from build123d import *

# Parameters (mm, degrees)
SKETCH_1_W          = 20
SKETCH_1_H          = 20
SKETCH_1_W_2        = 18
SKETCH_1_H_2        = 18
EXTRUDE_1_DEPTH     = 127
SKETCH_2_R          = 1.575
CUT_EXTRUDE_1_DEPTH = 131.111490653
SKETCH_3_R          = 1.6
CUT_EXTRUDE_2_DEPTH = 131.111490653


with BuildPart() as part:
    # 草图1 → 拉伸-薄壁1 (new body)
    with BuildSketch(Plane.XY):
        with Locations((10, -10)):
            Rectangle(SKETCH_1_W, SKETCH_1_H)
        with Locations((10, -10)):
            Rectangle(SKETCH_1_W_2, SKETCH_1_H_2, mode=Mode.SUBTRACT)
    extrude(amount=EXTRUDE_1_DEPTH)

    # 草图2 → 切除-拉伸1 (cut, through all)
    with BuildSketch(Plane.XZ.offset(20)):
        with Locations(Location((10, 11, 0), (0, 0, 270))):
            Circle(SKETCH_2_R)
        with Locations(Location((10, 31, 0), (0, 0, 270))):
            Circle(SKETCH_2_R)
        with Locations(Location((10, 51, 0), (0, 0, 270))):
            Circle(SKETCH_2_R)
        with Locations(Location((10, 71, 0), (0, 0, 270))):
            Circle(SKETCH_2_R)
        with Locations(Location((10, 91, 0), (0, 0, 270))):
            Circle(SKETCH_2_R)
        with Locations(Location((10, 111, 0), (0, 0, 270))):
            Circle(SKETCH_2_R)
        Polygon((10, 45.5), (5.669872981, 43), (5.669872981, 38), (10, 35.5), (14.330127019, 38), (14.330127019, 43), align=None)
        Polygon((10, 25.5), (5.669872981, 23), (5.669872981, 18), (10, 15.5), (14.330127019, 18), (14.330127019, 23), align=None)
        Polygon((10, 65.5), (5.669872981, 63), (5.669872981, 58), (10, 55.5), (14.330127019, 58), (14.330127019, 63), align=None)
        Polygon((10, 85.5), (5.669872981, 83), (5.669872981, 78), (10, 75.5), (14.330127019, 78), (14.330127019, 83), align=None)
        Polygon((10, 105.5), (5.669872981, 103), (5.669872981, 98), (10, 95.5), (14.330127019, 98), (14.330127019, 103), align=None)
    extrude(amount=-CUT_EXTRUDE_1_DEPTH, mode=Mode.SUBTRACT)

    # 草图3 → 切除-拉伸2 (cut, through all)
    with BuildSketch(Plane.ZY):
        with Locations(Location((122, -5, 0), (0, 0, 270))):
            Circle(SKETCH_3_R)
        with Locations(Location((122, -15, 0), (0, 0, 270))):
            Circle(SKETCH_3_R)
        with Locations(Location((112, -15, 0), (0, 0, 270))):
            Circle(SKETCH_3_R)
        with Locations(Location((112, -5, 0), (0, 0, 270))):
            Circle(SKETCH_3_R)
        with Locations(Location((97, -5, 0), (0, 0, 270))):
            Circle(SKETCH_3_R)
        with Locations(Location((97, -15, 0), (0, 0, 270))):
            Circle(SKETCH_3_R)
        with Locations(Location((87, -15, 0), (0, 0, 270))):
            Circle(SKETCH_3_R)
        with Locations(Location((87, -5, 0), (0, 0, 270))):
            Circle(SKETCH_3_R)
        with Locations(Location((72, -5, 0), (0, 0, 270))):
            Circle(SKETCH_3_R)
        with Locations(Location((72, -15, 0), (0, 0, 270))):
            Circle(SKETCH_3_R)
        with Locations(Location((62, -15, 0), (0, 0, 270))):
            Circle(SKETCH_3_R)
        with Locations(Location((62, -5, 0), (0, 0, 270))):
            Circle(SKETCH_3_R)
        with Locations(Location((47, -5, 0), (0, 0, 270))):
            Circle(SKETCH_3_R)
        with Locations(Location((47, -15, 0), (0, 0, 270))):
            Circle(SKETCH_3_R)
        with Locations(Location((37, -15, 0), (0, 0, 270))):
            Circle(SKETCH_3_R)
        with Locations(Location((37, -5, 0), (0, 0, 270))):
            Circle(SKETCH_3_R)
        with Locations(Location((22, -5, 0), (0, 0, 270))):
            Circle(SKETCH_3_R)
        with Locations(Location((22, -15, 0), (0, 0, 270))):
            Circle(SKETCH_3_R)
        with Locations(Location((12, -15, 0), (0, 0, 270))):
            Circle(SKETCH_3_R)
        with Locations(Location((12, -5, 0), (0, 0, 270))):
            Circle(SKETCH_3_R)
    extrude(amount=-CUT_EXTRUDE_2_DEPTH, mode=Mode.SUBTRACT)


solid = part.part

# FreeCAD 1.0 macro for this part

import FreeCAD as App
import Part
import Sketcher
Q = App.Units.Quantity


def add_polygon(sketch, points):
    """Adds a closed chain of lines whose ends are joined by coincident constraints."""
    first, n = sketch.GeometryCount, len(points)
    for a, b in zip(points, points[1:] + points[:1]):
        sketch.addGeometry(Part.LineSegment(App.Vector(*a, 0), App.Vector(*b, 0)), False)
    for i in range(n):
        sketch.addConstraint(Sketcher.Constraint("Coincident", first + i, 2, first + (i + 1) % n, 1))

doc = App.newDocument("Part")
body = doc.addObject("PartDesign::Body", "Body")

sketch1 = body.newObject("Sketcher::SketchObject", "Sketch")
sketch1.AttachmentSupport = (doc.getObject("XY_Plane"), [""])
sketch1.MapMode = "FlatFace"
add_polygon(sketch1, [(0, 0), (0, -20), (20, -20), (20, 0)])
add_polygon(sketch1, [(19, -19), (1, -19), (1, -1), (19, -1)])
sketch1.addConstraint([
    Sketcher.Constraint("Vertical", 0),
    Sketcher.Constraint("Horizontal", 1),
    Sketcher.Constraint("Vertical", 2),
    Sketcher.Constraint("Horizontal", 3),
    Sketcher.Constraint("Horizontal", 4),
    Sketcher.Constraint("Vertical", 5),
    Sketcher.Constraint("Horizontal", 6),
    Sketcher.Constraint("Vertical", 7),
    Sketcher.Constraint("Coincident", 3, 2, -1, 1),
    Sketcher.Constraint("Equal", 3, 0),
    Sketcher.Constraint("Equal", 6, 5),
    Sketcher.Constraint("DistanceX", 1, 1, 1, 2, 20.0),
    Sketcher.Constraint("DistanceX", 4, 2, 4, 1, 18.0),
    Sketcher.Constraint("DistanceX", -1, 1, 4, 2, 1.0),
    Sketcher.Constraint("DistanceY", 4, 2, -1, 1, 19.0),
])
pad1 = body.newObject("PartDesign::Pad", "Pad")
pad1.Profile = sketch1
pad1.Length = 127

sketch2 = body.newObject("Sketcher::SketchObject", "Sketch001")
sketch2.AttachmentSupport = (doc.getObject("XZ_Plane"), [""])
sketch2.MapMode = "FlatFace"
sketch2.AttachmentOffset = App.Placement(App.Vector(0, 0, 20), App.Rotation())
sketch2.addGeometry(Part.Circle(App.Vector(10, 11, 0), App.Vector(0, 0, 1), 1.6), False)
sketch2.addGeometry(Part.Circle(App.Vector(10, 31, 0), App.Vector(0, 0, 1), 1.6), False)
sketch2.addGeometry(Part.Circle(App.Vector(10, 51, 0), App.Vector(0, 0, 1), 1.6), False)
sketch2.addGeometry(Part.Circle(App.Vector(10, 71, 0), App.Vector(0, 0, 1), 1.6), False)
sketch2.addGeometry(Part.Circle(App.Vector(10, 91, 0), App.Vector(0, 0, 1), 1.6), False)
sketch2.addGeometry(Part.Circle(App.Vector(10, 111, 0), App.Vector(0, 0, 1), 1.6), False)
add_polygon(sketch2, [(10, 45.5), (5.7, 43), (5.7, 38), (10, 35.5), (14.3, 38), (14.3, 43)])
add_polygon(sketch2, [(10, 25.5), (5.7, 23), (5.7, 18), (10, 15.5), (14.3, 18), (14.3, 23)])
add_polygon(sketch2, [(10, 65.5), (5.7, 63), (5.7, 58), (10, 55.5), (14.3, 58), (14.3, 63)])
add_polygon(sketch2, [(10, 85.5), (5.7, 83), (5.7, 78), (10, 75.5), (14.3, 78), (14.3, 83)])
add_polygon(sketch2, [(10, 105.5), (5.7, 103), (5.7, 98), (10, 95.5), (14.3, 98), (14.3, 103)])
sketch2.addConstraint([
    Sketcher.Constraint("Vertical", 7),
    Sketcher.Constraint("Vertical", 10),
    Sketcher.Constraint("Vertical", 13),
    Sketcher.Constraint("Vertical", 16),
    Sketcher.Constraint("Vertical", 19),
    Sketcher.Constraint("Vertical", 22),
    Sketcher.Constraint("Vertical", 25),
    Sketcher.Constraint("Vertical", 28),
    Sketcher.Constraint("Vertical", 31),
    Sketcher.Constraint("Vertical", 34),
    Sketcher.Constraint("Equal", 0, 1),
    Sketcher.Constraint("Equal", 1, 2),
    Sketcher.Constraint("Equal", 2, 3),
    Sketcher.Constraint("Equal", 3, 4),
    Sketcher.Constraint("Equal", 4, 5),
    Sketcher.Constraint("Parallel", 6, 9),
    Sketcher.Constraint("Parallel", 8, 11),
    Sketcher.Constraint("Parallel", 9, 12),
    Sketcher.Constraint("Parallel", 11, 14),
    Sketcher.Constraint("Parallel", 12, 15),
    Sketcher.Constraint("Parallel", 14, 17),
    Sketcher.Constraint("Parallel", 15, 18),
    Sketcher.Constraint("Parallel", 17, 20),
    Sketcher.Constraint("Parallel", 18, 21),
    Sketcher.Constraint("Parallel", 20, 23),
    Sketcher.Constraint("Parallel", 21, 24),
    Sketcher.Constraint("Parallel", 23, 26),
    Sketcher.Constraint("Parallel", 24, 27),
    Sketcher.Constraint("Parallel", 26, 29),
    Sketcher.Constraint("Parallel", 27, 30),
    Sketcher.Constraint("Parallel", 29, 32),
    Sketcher.Constraint("Parallel", 30, 33),
    Sketcher.Constraint("Parallel", 32, 35),
    Sketcher.Constraint("Horizontal", 7, 2, 9, 2),
    Sketcher.Constraint("Horizontal", 6, 2, 10, 2),
    Sketcher.Constraint("Horizontal", 13, 2, 15, 2),
    Sketcher.Constraint("Horizontal", 12, 2, 16, 2),
    Sketcher.Constraint("Horizontal", 19, 2, 21, 2),
    Sketcher.Constraint("Horizontal", 18, 2, 22, 2),
    Sketcher.Constraint("Horizontal", 25, 2, 27, 2),
    Sketcher.Constraint("Horizontal", 24, 2, 28, 2),
    Sketcher.Constraint("Horizontal", 31, 2, 33, 2),
    Sketcher.Constraint("Horizontal", 30, 2, 34, 2),
    Sketcher.Constraint("Vertical", 0, 3, 1, 3),
    Sketcher.Constraint("Vertical", 1, 3, 2, 3),
    Sketcher.Constraint("Vertical", 2, 3, 3, 3),
    Sketcher.Constraint("Vertical", 3, 3, 4, 3),
    Sketcher.Constraint("Vertical", 4, 3, 5, 3),
    Sketcher.Constraint("Vertical", 5, 3, 8, 2),
    Sketcher.Constraint("Vertical", 8, 2, 11, 2),
    Sketcher.Constraint("Vertical", 7, 2, 12, 2),
    Sketcher.Constraint("Vertical", 11, 2, 14, 2),
    Sketcher.Constraint("Vertical", 13, 2, 18, 2),
    Sketcher.Constraint("Vertical", 17, 2, 20, 2),
    Sketcher.Constraint("Vertical", 19, 2, 24, 2),
    Sketcher.Constraint("Vertical", 23, 2, 26, 2),
    Sketcher.Constraint("Vertical", 25, 2, 30, 2),
    Sketcher.Constraint("Vertical", 29, 2, 32, 2),
    Sketcher.Constraint("Equal", 10, 13),
    Sketcher.Constraint("Equal", 16, 19),
    Sketcher.Constraint("Equal", 22, 25),
    Sketcher.Constraint("Equal", 28, 31),
    Sketcher.Constraint("Diameter", 0, 3.15),
    Sketcher.Constraint("DistanceY", 7, 2, 7, 1, 5.0),
    Sketcher.Constraint("Angle", 6, Q("-150 deg")),
    Sketcher.Constraint("Distance", 6, 5.0),
    Sketcher.Constraint("DistanceX", -1, 1, 0, 3, 10.0),
    Sketcher.Constraint("DistanceY", -1, 1, 0, 3, 11.0),
    Sketcher.Constraint("DistanceY", -1, 1, 1, 3, 31.0),
    Sketcher.Constraint("DistanceY", -1, 1, 2, 3, 51.0),
    Sketcher.Constraint("DistanceY", -1, 1, 3, 3, 71.0),
    Sketcher.Constraint("DistanceY", -1, 1, 4, 3, 91.0),
    Sketcher.Constraint("DistanceY", -1, 1, 5, 3, 111.0),
    Sketcher.Constraint("DistanceY", -1, 1, 6, 2, 43.0),
    Sketcher.Constraint("DistanceY", -1, 1, 12, 2, 23.0),
    Sketcher.Constraint("DistanceY", -1, 1, 18, 2, 63.0),
    Sketcher.Constraint("DistanceY", -1, 1, 24, 2, 83.0),
    Sketcher.Constraint("DistanceY", -1, 1, 30, 2, 103.0),
])
pocket1 = body.newObject("PartDesign::Pocket", "Pocket")
pocket1.Profile = sketch2
pocket1.Type = "ThroughAll"

sketch3 = body.newObject("Sketcher::SketchObject", "Sketch002")
sketch3.AttachmentSupport = (doc.getObject("YZ_Plane"), [""])
sketch3.MapMode = "FlatFace"
sketch3.addGeometry([
    Part.Circle(App.Vector(-5, 122, 0), App.Vector(0, 0, 1), 1.6),
    Part.Circle(App.Vector(-15, 122, 0), App.Vector(0, 0, 1), 1.6),
    Part.Circle(App.Vector(-15, 112, 0), App.Vector(0, 0, 1), 1.6),
    Part.Circle(App.Vector(-5, 112, 0), App.Vector(0, 0, 1), 1.6),
    Part.Circle(App.Vector(-5, 97, 0), App.Vector(0, 0, 1), 1.6),
    Part.Circle(App.Vector(-15, 97, 0), App.Vector(0, 0, 1), 1.6),
    Part.Circle(App.Vector(-15, 87, 0), App.Vector(0, 0, 1), 1.6),
    Part.Circle(App.Vector(-5, 87, 0), App.Vector(0, 0, 1), 1.6),
    Part.Circle(App.Vector(-5, 72, 0), App.Vector(0, 0, 1), 1.6),
    Part.Circle(App.Vector(-15, 72, 0), App.Vector(0, 0, 1), 1.6),
    Part.Circle(App.Vector(-15, 62, 0), App.Vector(0, 0, 1), 1.6),
    Part.Circle(App.Vector(-5, 62, 0), App.Vector(0, 0, 1), 1.6),
    Part.Circle(App.Vector(-5, 47, 0), App.Vector(0, 0, 1), 1.6),
    Part.Circle(App.Vector(-15, 47, 0), App.Vector(0, 0, 1), 1.6),
    Part.Circle(App.Vector(-15, 37, 0), App.Vector(0, 0, 1), 1.6),
    Part.Circle(App.Vector(-5, 37, 0), App.Vector(0, 0, 1), 1.6),
    Part.Circle(App.Vector(-5, 22, 0), App.Vector(0, 0, 1), 1.6),
    Part.Circle(App.Vector(-15, 22, 0), App.Vector(0, 0, 1), 1.6),
    Part.Circle(App.Vector(-15, 12, 0), App.Vector(0, 0, 1), 1.6),
    Part.Circle(App.Vector(-5, 12, 0), App.Vector(0, 0, 1), 1.6),
], False)
sketch3.addConstraint([
    Sketcher.Constraint("Equal", 0, 1),
    Sketcher.Constraint("Equal", 1, 2),
    Sketcher.Constraint("Equal", 2, 3),
    Sketcher.Constraint("Equal", 3, 4),
    Sketcher.Constraint("Equal", 4, 5),
    Sketcher.Constraint("Equal", 5, 6),
    Sketcher.Constraint("Equal", 6, 7),
    Sketcher.Constraint("Equal", 7, 8),
    Sketcher.Constraint("Equal", 8, 9),
    Sketcher.Constraint("Equal", 9, 10),
    Sketcher.Constraint("Equal", 10, 11),
    Sketcher.Constraint("Equal", 11, 12),
    Sketcher.Constraint("Equal", 12, 13),
    Sketcher.Constraint("Equal", 13, 14),
    Sketcher.Constraint("Equal", 14, 15),
    Sketcher.Constraint("Equal", 15, 16),
    Sketcher.Constraint("Equal", 16, 17),
    Sketcher.Constraint("Equal", 17, 18),
    Sketcher.Constraint("Equal", 18, 19),
    Sketcher.Constraint("Horizontal", 0, 3, 1, 3),
    Sketcher.Constraint("Horizontal", 2, 3, 3, 3),
    Sketcher.Constraint("Horizontal", 4, 3, 5, 3),
    Sketcher.Constraint("Horizontal", 6, 3, 7, 3),
    Sketcher.Constraint("Horizontal", 8, 3, 9, 3),
    Sketcher.Constraint("Horizontal", 10, 3, 11, 3),
    Sketcher.Constraint("Horizontal", 12, 3, 13, 3),
    Sketcher.Constraint("Horizontal", 14, 3, 15, 3),
    Sketcher.Constraint("Horizontal", 16, 3, 17, 3),
    Sketcher.Constraint("Horizontal", 18, 3, 19, 3),
    Sketcher.Constraint("Vertical", 1, 3, 2, 3),
    Sketcher.Constraint("Vertical", 0, 3, 3, 3),
    Sketcher.Constraint("Vertical", 3, 3, 4, 3),
    Sketcher.Constraint("Vertical", 2, 3, 5, 3),
    Sketcher.Constraint("Vertical", 5, 3, 6, 3),
    Sketcher.Constraint("Vertical", 4, 3, 7, 3),
    Sketcher.Constraint("Vertical", 7, 3, 8, 3),
    Sketcher.Constraint("Vertical", 6, 3, 9, 3),
    Sketcher.Constraint("Vertical", 9, 3, 10, 3),
    Sketcher.Constraint("Vertical", 8, 3, 11, 3),
    Sketcher.Constraint("Vertical", 11, 3, 12, 3),
    Sketcher.Constraint("Vertical", 10, 3, 13, 3),
    Sketcher.Constraint("Vertical", 13, 3, 14, 3),
    Sketcher.Constraint("Vertical", 12, 3, 15, 3),
    Sketcher.Constraint("Vertical", 15, 3, 16, 3),
    Sketcher.Constraint("Vertical", 14, 3, 17, 3),
    Sketcher.Constraint("Vertical", 17, 3, 18, 3),
    Sketcher.Constraint("Vertical", 16, 3, 19, 3),
    Sketcher.Constraint("Diameter", 0, 3.2),
    Sketcher.Constraint("DistanceX", 0, 3, -1, 1, 5.0),
    Sketcher.Constraint("DistanceY", -1, 1, 0, 3, 122.0),
    Sketcher.Constraint("DistanceX", 1, 3, -1, 1, 15.0),
    Sketcher.Constraint("DistanceY", -1, 1, 2, 3, 112.0),
    Sketcher.Constraint("DistanceY", -1, 1, 4, 3, 97.0),
    Sketcher.Constraint("DistanceY", -1, 1, 6, 3, 87.0),
    Sketcher.Constraint("DistanceY", -1, 1, 8, 3, 72.0),
    Sketcher.Constraint("DistanceY", -1, 1, 10, 3, 62.0),
    Sketcher.Constraint("DistanceY", -1, 1, 12, 3, 47.0),
    Sketcher.Constraint("DistanceY", -1, 1, 14, 3, 37.0),
    Sketcher.Constraint("DistanceY", -1, 1, 16, 3, 22.0),
    Sketcher.Constraint("DistanceY", -1, 1, 18, 3, 12.0),
])
pocket2 = body.newObject("PartDesign::Pocket", "Pocket001")
pocket2.Profile = sketch3
pocket2.Type = "ThroughAll"
pocket2.Reversed = True

doc.recompute()
